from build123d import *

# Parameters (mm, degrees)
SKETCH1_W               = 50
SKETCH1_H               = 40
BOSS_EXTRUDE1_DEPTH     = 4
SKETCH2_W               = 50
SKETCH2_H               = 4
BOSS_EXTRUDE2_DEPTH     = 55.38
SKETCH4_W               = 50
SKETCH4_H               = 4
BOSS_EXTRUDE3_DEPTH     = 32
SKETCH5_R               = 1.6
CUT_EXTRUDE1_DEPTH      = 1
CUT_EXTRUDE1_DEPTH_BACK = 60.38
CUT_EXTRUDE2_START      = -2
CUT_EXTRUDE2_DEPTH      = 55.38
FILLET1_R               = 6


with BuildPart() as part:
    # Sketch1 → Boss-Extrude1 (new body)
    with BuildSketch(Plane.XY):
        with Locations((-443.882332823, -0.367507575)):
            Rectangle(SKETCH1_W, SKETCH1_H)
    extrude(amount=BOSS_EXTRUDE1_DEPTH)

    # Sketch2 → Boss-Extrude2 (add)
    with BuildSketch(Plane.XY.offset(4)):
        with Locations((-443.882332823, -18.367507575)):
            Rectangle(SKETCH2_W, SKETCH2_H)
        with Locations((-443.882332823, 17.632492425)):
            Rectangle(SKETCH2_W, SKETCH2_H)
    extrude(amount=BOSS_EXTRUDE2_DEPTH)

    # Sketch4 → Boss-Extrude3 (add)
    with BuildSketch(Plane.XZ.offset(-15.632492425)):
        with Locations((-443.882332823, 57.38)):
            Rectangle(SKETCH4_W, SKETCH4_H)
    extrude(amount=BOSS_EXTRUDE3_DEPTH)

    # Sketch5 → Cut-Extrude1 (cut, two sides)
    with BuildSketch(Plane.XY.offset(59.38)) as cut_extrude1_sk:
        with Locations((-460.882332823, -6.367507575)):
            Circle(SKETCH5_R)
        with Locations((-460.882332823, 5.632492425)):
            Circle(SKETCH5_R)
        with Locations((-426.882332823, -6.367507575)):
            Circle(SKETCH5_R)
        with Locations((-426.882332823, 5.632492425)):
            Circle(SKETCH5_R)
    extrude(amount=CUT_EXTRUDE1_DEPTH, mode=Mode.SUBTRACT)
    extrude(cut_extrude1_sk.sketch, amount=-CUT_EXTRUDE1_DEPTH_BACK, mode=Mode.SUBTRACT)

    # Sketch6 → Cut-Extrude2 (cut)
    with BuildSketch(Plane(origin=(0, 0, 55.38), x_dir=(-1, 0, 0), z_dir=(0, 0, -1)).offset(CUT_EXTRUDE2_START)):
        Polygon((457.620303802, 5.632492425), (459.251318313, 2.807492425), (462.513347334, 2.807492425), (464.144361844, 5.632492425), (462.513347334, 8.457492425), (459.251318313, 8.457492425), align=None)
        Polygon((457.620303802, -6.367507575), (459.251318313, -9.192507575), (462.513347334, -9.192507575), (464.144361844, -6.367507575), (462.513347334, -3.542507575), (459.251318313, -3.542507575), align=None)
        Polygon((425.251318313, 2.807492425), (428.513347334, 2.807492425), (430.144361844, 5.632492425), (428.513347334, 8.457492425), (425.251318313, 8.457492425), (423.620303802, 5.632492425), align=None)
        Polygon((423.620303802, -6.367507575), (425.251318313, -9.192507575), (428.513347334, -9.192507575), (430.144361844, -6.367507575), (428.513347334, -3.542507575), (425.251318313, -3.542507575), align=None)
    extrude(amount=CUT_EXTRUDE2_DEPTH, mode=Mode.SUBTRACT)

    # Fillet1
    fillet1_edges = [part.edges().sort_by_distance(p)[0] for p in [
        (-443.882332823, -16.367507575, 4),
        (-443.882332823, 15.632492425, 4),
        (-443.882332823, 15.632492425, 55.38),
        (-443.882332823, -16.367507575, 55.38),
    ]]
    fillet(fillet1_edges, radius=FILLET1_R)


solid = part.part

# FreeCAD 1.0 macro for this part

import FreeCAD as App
import Part
import Sketcher
Q = App.Units.Quantity


def edges_at(feature, points):
    """Names of the edges that pass closest to the given points."""
    edges = feature.Shape.Edges
    near = lambda p: min(range(len(edges)), key=lambda i: edges[i].distToShape(Part.Vertex(*p))[0])
    return sorted({f"Edge{near(p) + 1}" for p in points})


def add_polygon(sketch, points):
    """Adds a closed chain of lines whose ends are joined by coincident constraints."""
    first, n = sketch.GeometryCount, len(points)
    for a, b in zip(points, points[1:] + points[:1]):
        sketch.addGeometry(Part.LineSegment(App.Vector(*a, 0), App.Vector(*b, 0)), False)
    for i in range(n):
        sketch.addConstraint(Sketcher.Constraint("Coincident", first + i, 2, first + (i + 1) % n, 1))

doc = App.newDocument("Part")
params = doc.addObject("Spreadsheet::Sheet", "Params")
for row, (alias, value) in enumerate([
    ("sketch1_width", "50 mm"),
    ("sketch1_height", "40 mm"),
    ("pad1_length", "4 mm"),
    ("sketch2_width", "50 mm"),
    ("sketch2_height", "4 mm"),
    ("pad2_length", "55.38 mm"),
    ("sketch3_width", "50 mm"),
    ("sketch3_height", "4 mm"),
    ("pad3_length", "32 mm"),
    ("sketch4_diameter", "3.2 mm"),
    ("pocket2_length", "55.38 mm"),
    ("fillet_radius", "6 mm"),
], start=1):
    params.set(f"A{row}", alias)
    params.set(f"B{row}", "=" + value)
    params.setAlias(f"B{row}", alias)

body = doc.addObject("PartDesign::Body", "Body")

# Sketch on XY plane
sketch1 = body.newObject("Sketcher::SketchObject", "Sketch")
sketch1.AttachmentSupport = (doc.getObject("XY_Plane"), [""])
sketch1.MapMode = "FlatFace"
add_polygon(sketch1, [(-468.882333, 19.632492), (-468.882333, -20.367508), (-418.882333, -20.367508), (-418.882333, 19.632492)])  # lines 0-3
sketch1.addConstraint([
    Sketcher.Constraint("Vertical", 0),
    Sketcher.Constraint("Horizontal", 1),
    Sketcher.Constraint("Vertical", 2),
    Sketcher.Constraint("Horizontal", 3),
    Sketcher.Constraint("DistanceX", 1, 1, 1, 2, 50.0),
    Sketcher.Constraint("DistanceY", 0, 2, 0, 1, 40.0),
    Sketcher.Constraint("DistanceX", 0, 2, -1, 1, 468.882333),
    Sketcher.Constraint("DistanceY", 0, 2, -1, 1, 20.367508),
])
sketch1.setExpression("Constraints[8]", "Params.sketch1_width")
sketch1.setExpression("Constraints[9]", "Params.sketch1_height")
pad1 = body.newObject("PartDesign::Pad", "Pad")
pad1.Profile = sketch1
pad1.setExpression("Length", "Params.pad1_length")

# Sketch on XY plane
sketch2 = body.newObject("Sketcher::SketchObject", "Sketch001")
sketch2.AttachmentSupport = (doc.getObject("XY_Plane"), [""])
sketch2.MapMode = "FlatFace"
sketch2.AttachmentOffset = App.Placement(App.Vector(0, 0, 4), App.Rotation())
add_polygon(sketch2, [(-468.882333, -16.367508), (-468.882333, -20.367508), (-418.882333, -20.367508), (-418.882333, -16.367508)])  # lines 0-3
add_polygon(sketch2, [(-468.882333, 19.632492), (-468.882333, 15.632492), (-418.882333, 15.632492), (-418.882333, 19.632492)])  # lines 4-7
sketch2.addConstraint([
    Sketcher.Constraint("Vertical", 0),
    Sketcher.Constraint("Horizontal", 1),
    Sketcher.Constraint("Vertical", 2),
    Sketcher.Constraint("Horizontal", 3),
    Sketcher.Constraint("Vertical", 4),
    Sketcher.Constraint("Horizontal", 5),
    Sketcher.Constraint("Vertical", 6),
    Sketcher.Constraint("Horizontal", 7),
    Sketcher.Constraint("Vertical", 3, 2, 4, 2),
    Sketcher.Constraint("Vertical", 2, 2, 5, 2),
    Sketcher.Constraint("Equal", 2, 4),
    Sketcher.Constraint("DistanceX", 1, 1, 1, 2, 50.0),
    Sketcher.Constraint("DistanceY", 0, 2, 0, 1, 4.0),
    Sketcher.Constraint("DistanceY", 3, 2, 4, 2, 32.0),
    Sketcher.Constraint("DistanceX", 0, 2, -1, 1, 468.882333),
    Sketcher.Constraint("DistanceY", 0, 2, -1, 1, 20.367508),
])
sketch2.setExpression("Constraints[19]", "Params.sketch2_width")
sketch2.setExpression("Constraints[20]", "Params.sketch2_height")
pad2 = body.newObject("PartDesign::Pad", "Pad001")
pad2.Profile = sketch2
pad2.setExpression("Length", "Params.pad2_length")

# Sketch on XZ plane
sketch3 = body.newObject("Sketcher::SketchObject", "Sketch002")
sketch3.AttachmentSupport = (doc.getObject("XZ_Plane"), [""])
sketch3.MapMode = "FlatFace"
sketch3.AttachmentOffset = App.Placement(App.Vector(0, 0, -15.632492), App.Rotation())
add_polygon(sketch3, [(-468.882333, 59.38), (-468.882333, 55.38), (-418.882333, 55.38), (-418.882333, 59.38)])  # lines 0-3
sketch3.addConstraint([
    Sketcher.Constraint("Vertical", 0),
    Sketcher.Constraint("Horizontal", 1),
    Sketcher.Constraint("Vertical", 2),
    Sketcher.Constraint("Horizontal", 3),
    Sketcher.Constraint("DistanceX", 1, 1, 1, 2, 50.0),
    Sketcher.Constraint("DistanceY", 0, 2, 0, 1, 4.0),
    Sketcher.Constraint("DistanceY", -1, 1, 0, 2, 55.38),
    Sketcher.Constraint("DistanceX", 0, 2, -1, 1, 468.882333),
])
sketch3.setExpression("Constraints[8]", "Params.sketch3_width")
sketch3.setExpression("Constraints[9]", "Params.sketch3_height")
pad3 = body.newObject("PartDesign::Pad", "Pad002")
pad3.Profile = sketch3
pad3.setExpression("Length", "Params.pad3_length")

# Sketch on XY plane
sketch4 = body.newObject("Sketcher::SketchObject", "Sketch003")
sketch4.AttachmentSupport = (doc.getObject("XY_Plane"), [""])
sketch4.MapMode = "FlatFace"
sketch4.AttachmentOffset = App.Placement(App.Vector(0, 0, 59.38), App.Rotation())
sketch4.addGeometry([
    Part.Circle(App.Vector(-460.882333, -6.367508, 0), App.Vector(0, 0, 1), 1.6),
    Part.Circle(App.Vector(-460.882333, 5.632492, 0), App.Vector(0, 0, 1), 1.6),
    Part.Circle(App.Vector(-426.882333, -6.367508, 0), App.Vector(0, 0, 1), 1.6),
    Part.Circle(App.Vector(-426.882333, 5.632492, 0), App.Vector(0, 0, 1), 1.6),
], False)
sketch4.addConstraint([
    Sketcher.Constraint("Equal", 0, 1),
    Sketcher.Constraint("Equal", 1, 2),
    Sketcher.Constraint("Equal", 2, 3),
    Sketcher.Constraint("Horizontal", 0, 3, 2, 3),
    Sketcher.Constraint("Horizontal", 1, 3, 3, 3),
    Sketcher.Constraint("Vertical", 0, 3, 1, 3),
    Sketcher.Constraint("Vertical", 2, 3, 3, 3),
    Sketcher.Constraint("Diameter", 0, 3.2),
    Sketcher.Constraint("DistanceY", 0, 3, 1, 3, 12.0),
    Sketcher.Constraint("DistanceX", 0, 3, 2, 3, 34.0),
    Sketcher.Constraint("DistanceX", 0, 3, -1, 1, 460.882333),
    Sketcher.Constraint("DistanceY", 0, 3, -1, 1, 6.367508),
])
sketch4.setExpression("Constraints[7]", "Params.sketch4_diameter")
pocket1 = body.newObject("PartDesign::Pocket", "Pocket")
pocket1.Profile = sketch4
pocket1.Type = "ThroughAll"
pocket1.Midplane = True

# Sketch on XY plane
sketch5 = body.newObject("Sketcher::SketchObject", "Sketch004")
sketch5.AttachmentSupport = (doc.getObject("XY_Plane"), [""])
sketch5.MapMode = "FlatFace"
sketch5.AttachmentOffset = App.Placement(App.Vector(0, 0, 57.38), App.Rotation())
add_polygon(sketch5, [(-457.620304, 5.632492), (-459.251318, 2.807492), (-462.513347, 2.807492), (-464.144362, 5.632492), (-462.513347, 8.457492), (-459.251318, 8.457492)])  # lines 0-5
add_polygon(sketch5, [(-457.620304, -6.367508), (-459.251318, -9.192508), (-462.513347, -9.192508), (-464.144362, -6.367508), (-462.513347, -3.542508), (-459.251318, -3.542508)])  # lines 6-11
add_polygon(sketch5, [(-425.251318, 2.807492), (-428.513347, 2.807492), (-430.144362, 5.632492), (-428.513347, 8.457492), (-425.251318, 8.457492), (-423.620304, 5.632492)])  # lines 12-17
add_polygon(sketch5, [(-423.620304, -6.367508), (-425.251318, -9.192508), (-428.513347, -9.192508), (-430.144362, -6.367508), (-428.513347, -3.542508), (-425.251318, -3.542508)])  # lines 18-23
sketch5.addConstraint([
    Sketcher.Constraint("Horizontal", 1),
    Sketcher.Constraint("Horizontal", 4),
    Sketcher.Constraint("Horizontal", 7),
    Sketcher.Constraint("Horizontal", 10),
    Sketcher.Constraint("Horizontal", 12),
    Sketcher.Constraint("Horizontal", 15),
    Sketcher.Constraint("Horizontal", 19),
    Sketcher.Constraint("Horizontal", 22),
    Sketcher.Constraint("Parallel", 0, 3),
    Sketcher.Constraint("Parallel", 2, 5),
    Sketcher.Constraint("Parallel", 3, 6),
    Sketcher.Constraint("Parallel", 5, 8),
    Sketcher.Constraint("Parallel", 6, 9),
    Sketcher.Constraint("Parallel", 8, 11),
    Sketcher.Constraint("Parallel", 11, 13),
    Sketcher.Constraint("Parallel", 9, 14),
    Sketcher.Constraint("Parallel", 13, 16),
    Sketcher.Constraint("Parallel", 14, 17),
    Sketcher.Constraint("Parallel", 17, 18),
    Sketcher.Constraint("Parallel", 16, 20),
    Sketcher.Constraint("Parallel", 18, 21),
    Sketcher.Constraint("Parallel", 20, 23),
    Sketcher.Constraint("Horizontal", 2, 2, 5, 2),
    Sketcher.Constraint("Horizontal", 8, 2, 11, 2),
    Sketcher.Constraint("Horizontal", 1, 2, 12, 2),
    Sketcher.Constraint("Horizontal", 5, 2, 13, 2),
    Sketcher.Constraint("Horizontal", 4, 2, 14, 2),
    Sketcher.Constraint("Horizontal", 13, 2, 16, 2),
    Sketcher.Constraint("Horizontal", 7, 2, 18, 2),
    Sketcher.Constraint("Horizontal", 11, 2, 20, 2),
    Sketcher.Constraint("Horizontal", 10, 2, 21, 2),
    Sketcher.Constraint("Horizontal", 20, 2, 23, 2),
    Sketcher.Constraint("Vertical", 1, 2, 3, 2),
    Sketcher.Constraint("Vertical", 0, 2, 4, 2),
    Sketcher.Constraint("Vertical", 4, 2, 6, 2),
    Sketcher.Constraint("Vertical", 3, 2, 7, 2),
    Sketcher.Constraint("Vertical", 2, 2, 8, 2),
    Sketcher.Constraint("Vertical", 7, 2, 9, 2),
    Sketcher.Constraint("Vertical", 17, 2, 18, 2),
    Sketcher.Constraint("Vertical", 14, 2, 19, 2),
    Sketcher.Constraint("Equal", 10, 12),
    Sketcher.Constraint("Angle", 0, Q("-120 deg")),
    Sketcher.Constraint("DistanceY", 6, 2, 0, 2, 12.0),
    Sketcher.Constraint("DistanceX", 4, 2, 15, 2, 34.0),
    Sketcher.Constraint("DistanceY", 1, 2, 3, 2, 5.65),
    Sketcher.Constraint("DistanceX", 1, 2, 1, 1, 3.262029),
    Sketcher.Constraint("DistanceX", 0, 2, -1, 1, 459.251318),
    Sketcher.Constraint("DistanceY", -1, 1, 0, 2, 2.807492),
])
pocket2 = body.newObject("PartDesign::Pocket", "Pocket001")
pocket2.Profile = sketch5
pocket2.setExpression("Length", "Params.pocket2_length")
doc.recompute()

fillet = body.newObject("PartDesign::Fillet", "Fillet")
fillet.Base = (pocket2, edges_at(pocket2, [
    (-443.882, -16.368, 4),
    (-443.882, 15.632, 4),
    (-443.882, 15.632, 55.38),
    (-443.882, -16.368, 55.38),
]))
fillet.setExpression("Radius", "Params.fillet_radius")

doc.recompute()
